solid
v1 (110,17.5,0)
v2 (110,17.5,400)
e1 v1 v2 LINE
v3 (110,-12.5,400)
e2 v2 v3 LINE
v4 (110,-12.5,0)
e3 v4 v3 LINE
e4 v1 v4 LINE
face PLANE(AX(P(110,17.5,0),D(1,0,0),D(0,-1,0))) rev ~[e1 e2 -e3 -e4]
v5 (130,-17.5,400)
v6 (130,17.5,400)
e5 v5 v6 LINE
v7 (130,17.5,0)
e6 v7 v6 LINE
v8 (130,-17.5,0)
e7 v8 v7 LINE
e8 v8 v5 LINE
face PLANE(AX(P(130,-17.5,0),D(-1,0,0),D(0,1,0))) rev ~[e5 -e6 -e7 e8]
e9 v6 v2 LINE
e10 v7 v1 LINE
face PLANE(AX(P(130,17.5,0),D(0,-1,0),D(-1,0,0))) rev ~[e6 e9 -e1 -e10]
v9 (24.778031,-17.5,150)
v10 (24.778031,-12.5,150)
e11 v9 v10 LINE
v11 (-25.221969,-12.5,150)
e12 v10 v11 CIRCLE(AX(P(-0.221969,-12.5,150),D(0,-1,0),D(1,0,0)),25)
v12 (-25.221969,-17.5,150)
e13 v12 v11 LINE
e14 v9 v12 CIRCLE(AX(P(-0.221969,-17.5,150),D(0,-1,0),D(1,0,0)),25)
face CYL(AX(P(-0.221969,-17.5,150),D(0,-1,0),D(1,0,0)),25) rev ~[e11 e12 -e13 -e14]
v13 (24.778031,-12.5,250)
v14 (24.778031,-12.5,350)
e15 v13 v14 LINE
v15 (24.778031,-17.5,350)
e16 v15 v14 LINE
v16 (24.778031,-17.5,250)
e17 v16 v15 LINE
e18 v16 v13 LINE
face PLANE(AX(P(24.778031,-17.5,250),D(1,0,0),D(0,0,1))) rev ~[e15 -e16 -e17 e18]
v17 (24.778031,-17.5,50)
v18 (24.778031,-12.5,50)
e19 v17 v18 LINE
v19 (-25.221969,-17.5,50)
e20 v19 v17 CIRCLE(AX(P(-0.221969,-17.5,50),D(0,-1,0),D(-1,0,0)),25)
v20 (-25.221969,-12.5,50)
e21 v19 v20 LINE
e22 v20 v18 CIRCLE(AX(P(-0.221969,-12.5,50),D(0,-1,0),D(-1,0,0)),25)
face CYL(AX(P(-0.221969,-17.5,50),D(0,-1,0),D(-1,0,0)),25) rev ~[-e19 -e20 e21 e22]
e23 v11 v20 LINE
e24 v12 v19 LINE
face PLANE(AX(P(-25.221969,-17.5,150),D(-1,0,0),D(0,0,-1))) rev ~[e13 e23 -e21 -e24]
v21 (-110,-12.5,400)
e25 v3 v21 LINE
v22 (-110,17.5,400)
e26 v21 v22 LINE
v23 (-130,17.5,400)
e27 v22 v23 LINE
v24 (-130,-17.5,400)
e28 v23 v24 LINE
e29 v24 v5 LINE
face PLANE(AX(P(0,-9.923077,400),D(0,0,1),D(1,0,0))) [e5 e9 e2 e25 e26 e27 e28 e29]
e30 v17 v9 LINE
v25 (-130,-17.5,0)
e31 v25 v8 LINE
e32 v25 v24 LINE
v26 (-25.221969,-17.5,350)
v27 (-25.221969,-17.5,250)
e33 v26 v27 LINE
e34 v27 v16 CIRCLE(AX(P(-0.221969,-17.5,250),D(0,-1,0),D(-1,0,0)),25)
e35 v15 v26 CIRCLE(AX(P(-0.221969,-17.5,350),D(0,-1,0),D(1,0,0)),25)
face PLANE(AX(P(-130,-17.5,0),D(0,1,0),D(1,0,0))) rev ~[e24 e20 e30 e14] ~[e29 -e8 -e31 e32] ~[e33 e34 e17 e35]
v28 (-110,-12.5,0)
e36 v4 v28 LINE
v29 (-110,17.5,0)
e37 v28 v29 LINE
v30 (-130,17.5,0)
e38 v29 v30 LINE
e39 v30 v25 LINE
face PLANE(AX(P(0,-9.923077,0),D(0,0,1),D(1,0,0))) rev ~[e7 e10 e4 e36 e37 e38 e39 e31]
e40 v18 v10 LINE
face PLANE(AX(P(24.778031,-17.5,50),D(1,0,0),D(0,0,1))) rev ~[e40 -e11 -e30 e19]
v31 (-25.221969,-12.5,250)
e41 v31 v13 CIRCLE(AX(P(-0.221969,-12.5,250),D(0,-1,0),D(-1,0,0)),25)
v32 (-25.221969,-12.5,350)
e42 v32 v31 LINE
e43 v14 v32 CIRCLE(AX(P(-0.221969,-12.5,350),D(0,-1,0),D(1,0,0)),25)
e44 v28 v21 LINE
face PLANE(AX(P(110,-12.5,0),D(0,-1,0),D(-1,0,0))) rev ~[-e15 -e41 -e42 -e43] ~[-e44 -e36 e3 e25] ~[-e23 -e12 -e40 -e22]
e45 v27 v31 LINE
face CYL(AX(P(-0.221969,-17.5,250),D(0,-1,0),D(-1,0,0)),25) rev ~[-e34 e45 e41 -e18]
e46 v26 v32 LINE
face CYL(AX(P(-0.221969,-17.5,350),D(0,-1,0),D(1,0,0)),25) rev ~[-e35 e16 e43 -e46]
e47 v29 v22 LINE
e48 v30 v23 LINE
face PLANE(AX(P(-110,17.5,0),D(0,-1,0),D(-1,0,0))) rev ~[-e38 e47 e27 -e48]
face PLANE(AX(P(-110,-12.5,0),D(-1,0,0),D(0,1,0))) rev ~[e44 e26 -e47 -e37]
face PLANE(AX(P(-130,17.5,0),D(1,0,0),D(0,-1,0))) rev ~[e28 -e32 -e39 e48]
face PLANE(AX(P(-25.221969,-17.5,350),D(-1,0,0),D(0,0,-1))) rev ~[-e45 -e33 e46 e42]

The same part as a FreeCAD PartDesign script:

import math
import FreeCAD as App
import Part
import Sketcher

V = App.Vector


def add_polygon(sketch, points):
    """Adds a closed chain of lines whose ends are joined by coincident constraints."""
    first, n = sketch.GeometryCount, len(points)
    for a, b in zip(points, points[1:] + points[:1]):
        sketch.addGeometry(Part.LineSegment(App.Vector(*a, 0), App.Vector(*b, 0)), False)
    for i in range(n):
        sketch.addConstraint(Sketcher.Constraint("Coincident", first + i, 2, first + (i + 1) % n, 1))

doc = App.newDocument("Part")
body = doc.addObject("PartDesign::Body", "Body")

sketch1 = body.newObject("Sketcher::SketchObject", "Sketch")
sketch1.AttachmentSupport = (doc.getObject("XY_Plane"), [""])
sketch1.MapMode = "FlatFace"
add_polygon(sketch1, [(-130, 17.5), (-130, -17.5), (130, -17.5), (130, 17.5), (110, 17.5), (110, -12.5), (-110, -12.5), (-110, 17.5)])
sketch1.addConstraint([
    Sketcher.Constraint("Vertical", 0),
    Sketcher.Constraint("Horizontal", 1),
    Sketcher.Constraint("Vertical", 2),
    Sketcher.Constraint("Horizontal", 3),
    Sketcher.Constraint("Vertical", 4),
    Sketcher.Constraint("Horizontal", 5),
    Sketcher.Constraint("Vertical", 6),
    Sketcher.Constraint("Horizontal", 7),
    Sketcher.Constraint("Symmetric", 0, 2, 2, 2, -1, 1),
    Sketcher.Constraint("Symmetric", 3, 2, 6, 2, -2),
    Sketcher.Constraint("DistanceX", 1, 1, 1, 2, 260.0),
    Sketcher.Constraint("DistanceX", 3, 2, 3, 1, 20.0),
    Sketcher.Constraint("DistanceY", 0, 2, 0, 1, 35.0),
    Sketcher.Constraint("DistanceY", 4, 2, 4, 1, 30.0),
])
pad1 = body.newObject("PartDesign::Pad", "Pad")
pad1.Profile = sketch1
pad1.Length = 400

sketch2 = body.newObject("Sketcher::SketchObject", "Sketch001")
sketch2.AttachmentSupport = (doc.getObject("XZ_Plane"), [""])
sketch2.MapMode = "FlatFace"
sketch2.AttachmentOffset = App.Placement(V(0, 0, 17.5), App.Rotation())
sketch2.addGeometry([
    Part.LineSegment(V(-25.221969, 350, 0), V(-25.221969, 250, 0)),
    Part.ArcOfCircle(Part.Circle(V(-0.221969, 250, 0), V(0, 0, 1), 25), math.radians(180), math.radians(360)),
    Part.LineSegment(V(24.778031, 250, 0), V(24.778031, 350, 0)),
    Part.ArcOfCircle(Part.Circle(V(-0.221969, 350, 0), V(0, 0, 1), 25), math.radians(0), math.radians(180)),
    Part.LineSegment(V(24.778031, 50, 0), V(24.778031, 150, 0)),
    Part.ArcOfCircle(Part.Circle(V(-0.221969, 150, 0), V(0, 0, 1), 25), math.radians(0), math.radians(180)),
    Part.LineSegment(V(-25.221969, 150, 0), V(-25.221969, 50, 0)),
    Part.ArcOfCircle(Part.Circle(V(-0.221969, 50, 0), V(0, 0, 1), 25), math.radians(180), math.radians(360)),
], False)
sketch2.addConstraint([
    Sketcher.Constraint("Tangent", 0, 2, 1, 1),
    Sketcher.Constraint("Tangent", 1, 2, 2, 1),
    Sketcher.Constraint("Tangent", 2, 2, 3, 1),
    Sketcher.Constraint("Tangent", 3, 2, 0, 1),
    Sketcher.Constraint("Tangent", 4, 2, 5, 1),
    Sketcher.Constraint("Tangent", 5, 2, 6, 1),
    Sketcher.Constraint("Tangent", 6, 2, 7, 1),
    Sketcher.Constraint("Tangent", 7, 2, 4, 1),
    Sketcher.Constraint("Vertical", 0),
    Sketcher.Constraint("Vertical", 2),
    Sketcher.Constraint("Vertical", 4),
    Sketcher.Constraint("Vertical", 6),
    Sketcher.Constraint("Equal", 3, 5),
    Sketcher.Constraint("Vertical", 3, 3, 5, 3),
    Sketcher.Constraint("Equal", 2, 4),
    Sketcher.Constraint("Radius", 1, 25.0),
    Sketcher.Constraint("DistanceY", 0, 2, 0, 1, 100.0),
    Sketcher.Constraint("DistanceY", -1, 1, 1, 3, 250.0),
    Sketcher.Constraint("DistanceY", -1, 1, 5, 3, 150.0),
    Sketcher.Constraint("DistanceX", 1, 3, -1, 1, 0.221969),
])
pocket1 = body.newObject("PartDesign::Pocket", "Pocket")
pocket1.Profile = sketch2
pocket1.Length = 25

doc.recompute()
